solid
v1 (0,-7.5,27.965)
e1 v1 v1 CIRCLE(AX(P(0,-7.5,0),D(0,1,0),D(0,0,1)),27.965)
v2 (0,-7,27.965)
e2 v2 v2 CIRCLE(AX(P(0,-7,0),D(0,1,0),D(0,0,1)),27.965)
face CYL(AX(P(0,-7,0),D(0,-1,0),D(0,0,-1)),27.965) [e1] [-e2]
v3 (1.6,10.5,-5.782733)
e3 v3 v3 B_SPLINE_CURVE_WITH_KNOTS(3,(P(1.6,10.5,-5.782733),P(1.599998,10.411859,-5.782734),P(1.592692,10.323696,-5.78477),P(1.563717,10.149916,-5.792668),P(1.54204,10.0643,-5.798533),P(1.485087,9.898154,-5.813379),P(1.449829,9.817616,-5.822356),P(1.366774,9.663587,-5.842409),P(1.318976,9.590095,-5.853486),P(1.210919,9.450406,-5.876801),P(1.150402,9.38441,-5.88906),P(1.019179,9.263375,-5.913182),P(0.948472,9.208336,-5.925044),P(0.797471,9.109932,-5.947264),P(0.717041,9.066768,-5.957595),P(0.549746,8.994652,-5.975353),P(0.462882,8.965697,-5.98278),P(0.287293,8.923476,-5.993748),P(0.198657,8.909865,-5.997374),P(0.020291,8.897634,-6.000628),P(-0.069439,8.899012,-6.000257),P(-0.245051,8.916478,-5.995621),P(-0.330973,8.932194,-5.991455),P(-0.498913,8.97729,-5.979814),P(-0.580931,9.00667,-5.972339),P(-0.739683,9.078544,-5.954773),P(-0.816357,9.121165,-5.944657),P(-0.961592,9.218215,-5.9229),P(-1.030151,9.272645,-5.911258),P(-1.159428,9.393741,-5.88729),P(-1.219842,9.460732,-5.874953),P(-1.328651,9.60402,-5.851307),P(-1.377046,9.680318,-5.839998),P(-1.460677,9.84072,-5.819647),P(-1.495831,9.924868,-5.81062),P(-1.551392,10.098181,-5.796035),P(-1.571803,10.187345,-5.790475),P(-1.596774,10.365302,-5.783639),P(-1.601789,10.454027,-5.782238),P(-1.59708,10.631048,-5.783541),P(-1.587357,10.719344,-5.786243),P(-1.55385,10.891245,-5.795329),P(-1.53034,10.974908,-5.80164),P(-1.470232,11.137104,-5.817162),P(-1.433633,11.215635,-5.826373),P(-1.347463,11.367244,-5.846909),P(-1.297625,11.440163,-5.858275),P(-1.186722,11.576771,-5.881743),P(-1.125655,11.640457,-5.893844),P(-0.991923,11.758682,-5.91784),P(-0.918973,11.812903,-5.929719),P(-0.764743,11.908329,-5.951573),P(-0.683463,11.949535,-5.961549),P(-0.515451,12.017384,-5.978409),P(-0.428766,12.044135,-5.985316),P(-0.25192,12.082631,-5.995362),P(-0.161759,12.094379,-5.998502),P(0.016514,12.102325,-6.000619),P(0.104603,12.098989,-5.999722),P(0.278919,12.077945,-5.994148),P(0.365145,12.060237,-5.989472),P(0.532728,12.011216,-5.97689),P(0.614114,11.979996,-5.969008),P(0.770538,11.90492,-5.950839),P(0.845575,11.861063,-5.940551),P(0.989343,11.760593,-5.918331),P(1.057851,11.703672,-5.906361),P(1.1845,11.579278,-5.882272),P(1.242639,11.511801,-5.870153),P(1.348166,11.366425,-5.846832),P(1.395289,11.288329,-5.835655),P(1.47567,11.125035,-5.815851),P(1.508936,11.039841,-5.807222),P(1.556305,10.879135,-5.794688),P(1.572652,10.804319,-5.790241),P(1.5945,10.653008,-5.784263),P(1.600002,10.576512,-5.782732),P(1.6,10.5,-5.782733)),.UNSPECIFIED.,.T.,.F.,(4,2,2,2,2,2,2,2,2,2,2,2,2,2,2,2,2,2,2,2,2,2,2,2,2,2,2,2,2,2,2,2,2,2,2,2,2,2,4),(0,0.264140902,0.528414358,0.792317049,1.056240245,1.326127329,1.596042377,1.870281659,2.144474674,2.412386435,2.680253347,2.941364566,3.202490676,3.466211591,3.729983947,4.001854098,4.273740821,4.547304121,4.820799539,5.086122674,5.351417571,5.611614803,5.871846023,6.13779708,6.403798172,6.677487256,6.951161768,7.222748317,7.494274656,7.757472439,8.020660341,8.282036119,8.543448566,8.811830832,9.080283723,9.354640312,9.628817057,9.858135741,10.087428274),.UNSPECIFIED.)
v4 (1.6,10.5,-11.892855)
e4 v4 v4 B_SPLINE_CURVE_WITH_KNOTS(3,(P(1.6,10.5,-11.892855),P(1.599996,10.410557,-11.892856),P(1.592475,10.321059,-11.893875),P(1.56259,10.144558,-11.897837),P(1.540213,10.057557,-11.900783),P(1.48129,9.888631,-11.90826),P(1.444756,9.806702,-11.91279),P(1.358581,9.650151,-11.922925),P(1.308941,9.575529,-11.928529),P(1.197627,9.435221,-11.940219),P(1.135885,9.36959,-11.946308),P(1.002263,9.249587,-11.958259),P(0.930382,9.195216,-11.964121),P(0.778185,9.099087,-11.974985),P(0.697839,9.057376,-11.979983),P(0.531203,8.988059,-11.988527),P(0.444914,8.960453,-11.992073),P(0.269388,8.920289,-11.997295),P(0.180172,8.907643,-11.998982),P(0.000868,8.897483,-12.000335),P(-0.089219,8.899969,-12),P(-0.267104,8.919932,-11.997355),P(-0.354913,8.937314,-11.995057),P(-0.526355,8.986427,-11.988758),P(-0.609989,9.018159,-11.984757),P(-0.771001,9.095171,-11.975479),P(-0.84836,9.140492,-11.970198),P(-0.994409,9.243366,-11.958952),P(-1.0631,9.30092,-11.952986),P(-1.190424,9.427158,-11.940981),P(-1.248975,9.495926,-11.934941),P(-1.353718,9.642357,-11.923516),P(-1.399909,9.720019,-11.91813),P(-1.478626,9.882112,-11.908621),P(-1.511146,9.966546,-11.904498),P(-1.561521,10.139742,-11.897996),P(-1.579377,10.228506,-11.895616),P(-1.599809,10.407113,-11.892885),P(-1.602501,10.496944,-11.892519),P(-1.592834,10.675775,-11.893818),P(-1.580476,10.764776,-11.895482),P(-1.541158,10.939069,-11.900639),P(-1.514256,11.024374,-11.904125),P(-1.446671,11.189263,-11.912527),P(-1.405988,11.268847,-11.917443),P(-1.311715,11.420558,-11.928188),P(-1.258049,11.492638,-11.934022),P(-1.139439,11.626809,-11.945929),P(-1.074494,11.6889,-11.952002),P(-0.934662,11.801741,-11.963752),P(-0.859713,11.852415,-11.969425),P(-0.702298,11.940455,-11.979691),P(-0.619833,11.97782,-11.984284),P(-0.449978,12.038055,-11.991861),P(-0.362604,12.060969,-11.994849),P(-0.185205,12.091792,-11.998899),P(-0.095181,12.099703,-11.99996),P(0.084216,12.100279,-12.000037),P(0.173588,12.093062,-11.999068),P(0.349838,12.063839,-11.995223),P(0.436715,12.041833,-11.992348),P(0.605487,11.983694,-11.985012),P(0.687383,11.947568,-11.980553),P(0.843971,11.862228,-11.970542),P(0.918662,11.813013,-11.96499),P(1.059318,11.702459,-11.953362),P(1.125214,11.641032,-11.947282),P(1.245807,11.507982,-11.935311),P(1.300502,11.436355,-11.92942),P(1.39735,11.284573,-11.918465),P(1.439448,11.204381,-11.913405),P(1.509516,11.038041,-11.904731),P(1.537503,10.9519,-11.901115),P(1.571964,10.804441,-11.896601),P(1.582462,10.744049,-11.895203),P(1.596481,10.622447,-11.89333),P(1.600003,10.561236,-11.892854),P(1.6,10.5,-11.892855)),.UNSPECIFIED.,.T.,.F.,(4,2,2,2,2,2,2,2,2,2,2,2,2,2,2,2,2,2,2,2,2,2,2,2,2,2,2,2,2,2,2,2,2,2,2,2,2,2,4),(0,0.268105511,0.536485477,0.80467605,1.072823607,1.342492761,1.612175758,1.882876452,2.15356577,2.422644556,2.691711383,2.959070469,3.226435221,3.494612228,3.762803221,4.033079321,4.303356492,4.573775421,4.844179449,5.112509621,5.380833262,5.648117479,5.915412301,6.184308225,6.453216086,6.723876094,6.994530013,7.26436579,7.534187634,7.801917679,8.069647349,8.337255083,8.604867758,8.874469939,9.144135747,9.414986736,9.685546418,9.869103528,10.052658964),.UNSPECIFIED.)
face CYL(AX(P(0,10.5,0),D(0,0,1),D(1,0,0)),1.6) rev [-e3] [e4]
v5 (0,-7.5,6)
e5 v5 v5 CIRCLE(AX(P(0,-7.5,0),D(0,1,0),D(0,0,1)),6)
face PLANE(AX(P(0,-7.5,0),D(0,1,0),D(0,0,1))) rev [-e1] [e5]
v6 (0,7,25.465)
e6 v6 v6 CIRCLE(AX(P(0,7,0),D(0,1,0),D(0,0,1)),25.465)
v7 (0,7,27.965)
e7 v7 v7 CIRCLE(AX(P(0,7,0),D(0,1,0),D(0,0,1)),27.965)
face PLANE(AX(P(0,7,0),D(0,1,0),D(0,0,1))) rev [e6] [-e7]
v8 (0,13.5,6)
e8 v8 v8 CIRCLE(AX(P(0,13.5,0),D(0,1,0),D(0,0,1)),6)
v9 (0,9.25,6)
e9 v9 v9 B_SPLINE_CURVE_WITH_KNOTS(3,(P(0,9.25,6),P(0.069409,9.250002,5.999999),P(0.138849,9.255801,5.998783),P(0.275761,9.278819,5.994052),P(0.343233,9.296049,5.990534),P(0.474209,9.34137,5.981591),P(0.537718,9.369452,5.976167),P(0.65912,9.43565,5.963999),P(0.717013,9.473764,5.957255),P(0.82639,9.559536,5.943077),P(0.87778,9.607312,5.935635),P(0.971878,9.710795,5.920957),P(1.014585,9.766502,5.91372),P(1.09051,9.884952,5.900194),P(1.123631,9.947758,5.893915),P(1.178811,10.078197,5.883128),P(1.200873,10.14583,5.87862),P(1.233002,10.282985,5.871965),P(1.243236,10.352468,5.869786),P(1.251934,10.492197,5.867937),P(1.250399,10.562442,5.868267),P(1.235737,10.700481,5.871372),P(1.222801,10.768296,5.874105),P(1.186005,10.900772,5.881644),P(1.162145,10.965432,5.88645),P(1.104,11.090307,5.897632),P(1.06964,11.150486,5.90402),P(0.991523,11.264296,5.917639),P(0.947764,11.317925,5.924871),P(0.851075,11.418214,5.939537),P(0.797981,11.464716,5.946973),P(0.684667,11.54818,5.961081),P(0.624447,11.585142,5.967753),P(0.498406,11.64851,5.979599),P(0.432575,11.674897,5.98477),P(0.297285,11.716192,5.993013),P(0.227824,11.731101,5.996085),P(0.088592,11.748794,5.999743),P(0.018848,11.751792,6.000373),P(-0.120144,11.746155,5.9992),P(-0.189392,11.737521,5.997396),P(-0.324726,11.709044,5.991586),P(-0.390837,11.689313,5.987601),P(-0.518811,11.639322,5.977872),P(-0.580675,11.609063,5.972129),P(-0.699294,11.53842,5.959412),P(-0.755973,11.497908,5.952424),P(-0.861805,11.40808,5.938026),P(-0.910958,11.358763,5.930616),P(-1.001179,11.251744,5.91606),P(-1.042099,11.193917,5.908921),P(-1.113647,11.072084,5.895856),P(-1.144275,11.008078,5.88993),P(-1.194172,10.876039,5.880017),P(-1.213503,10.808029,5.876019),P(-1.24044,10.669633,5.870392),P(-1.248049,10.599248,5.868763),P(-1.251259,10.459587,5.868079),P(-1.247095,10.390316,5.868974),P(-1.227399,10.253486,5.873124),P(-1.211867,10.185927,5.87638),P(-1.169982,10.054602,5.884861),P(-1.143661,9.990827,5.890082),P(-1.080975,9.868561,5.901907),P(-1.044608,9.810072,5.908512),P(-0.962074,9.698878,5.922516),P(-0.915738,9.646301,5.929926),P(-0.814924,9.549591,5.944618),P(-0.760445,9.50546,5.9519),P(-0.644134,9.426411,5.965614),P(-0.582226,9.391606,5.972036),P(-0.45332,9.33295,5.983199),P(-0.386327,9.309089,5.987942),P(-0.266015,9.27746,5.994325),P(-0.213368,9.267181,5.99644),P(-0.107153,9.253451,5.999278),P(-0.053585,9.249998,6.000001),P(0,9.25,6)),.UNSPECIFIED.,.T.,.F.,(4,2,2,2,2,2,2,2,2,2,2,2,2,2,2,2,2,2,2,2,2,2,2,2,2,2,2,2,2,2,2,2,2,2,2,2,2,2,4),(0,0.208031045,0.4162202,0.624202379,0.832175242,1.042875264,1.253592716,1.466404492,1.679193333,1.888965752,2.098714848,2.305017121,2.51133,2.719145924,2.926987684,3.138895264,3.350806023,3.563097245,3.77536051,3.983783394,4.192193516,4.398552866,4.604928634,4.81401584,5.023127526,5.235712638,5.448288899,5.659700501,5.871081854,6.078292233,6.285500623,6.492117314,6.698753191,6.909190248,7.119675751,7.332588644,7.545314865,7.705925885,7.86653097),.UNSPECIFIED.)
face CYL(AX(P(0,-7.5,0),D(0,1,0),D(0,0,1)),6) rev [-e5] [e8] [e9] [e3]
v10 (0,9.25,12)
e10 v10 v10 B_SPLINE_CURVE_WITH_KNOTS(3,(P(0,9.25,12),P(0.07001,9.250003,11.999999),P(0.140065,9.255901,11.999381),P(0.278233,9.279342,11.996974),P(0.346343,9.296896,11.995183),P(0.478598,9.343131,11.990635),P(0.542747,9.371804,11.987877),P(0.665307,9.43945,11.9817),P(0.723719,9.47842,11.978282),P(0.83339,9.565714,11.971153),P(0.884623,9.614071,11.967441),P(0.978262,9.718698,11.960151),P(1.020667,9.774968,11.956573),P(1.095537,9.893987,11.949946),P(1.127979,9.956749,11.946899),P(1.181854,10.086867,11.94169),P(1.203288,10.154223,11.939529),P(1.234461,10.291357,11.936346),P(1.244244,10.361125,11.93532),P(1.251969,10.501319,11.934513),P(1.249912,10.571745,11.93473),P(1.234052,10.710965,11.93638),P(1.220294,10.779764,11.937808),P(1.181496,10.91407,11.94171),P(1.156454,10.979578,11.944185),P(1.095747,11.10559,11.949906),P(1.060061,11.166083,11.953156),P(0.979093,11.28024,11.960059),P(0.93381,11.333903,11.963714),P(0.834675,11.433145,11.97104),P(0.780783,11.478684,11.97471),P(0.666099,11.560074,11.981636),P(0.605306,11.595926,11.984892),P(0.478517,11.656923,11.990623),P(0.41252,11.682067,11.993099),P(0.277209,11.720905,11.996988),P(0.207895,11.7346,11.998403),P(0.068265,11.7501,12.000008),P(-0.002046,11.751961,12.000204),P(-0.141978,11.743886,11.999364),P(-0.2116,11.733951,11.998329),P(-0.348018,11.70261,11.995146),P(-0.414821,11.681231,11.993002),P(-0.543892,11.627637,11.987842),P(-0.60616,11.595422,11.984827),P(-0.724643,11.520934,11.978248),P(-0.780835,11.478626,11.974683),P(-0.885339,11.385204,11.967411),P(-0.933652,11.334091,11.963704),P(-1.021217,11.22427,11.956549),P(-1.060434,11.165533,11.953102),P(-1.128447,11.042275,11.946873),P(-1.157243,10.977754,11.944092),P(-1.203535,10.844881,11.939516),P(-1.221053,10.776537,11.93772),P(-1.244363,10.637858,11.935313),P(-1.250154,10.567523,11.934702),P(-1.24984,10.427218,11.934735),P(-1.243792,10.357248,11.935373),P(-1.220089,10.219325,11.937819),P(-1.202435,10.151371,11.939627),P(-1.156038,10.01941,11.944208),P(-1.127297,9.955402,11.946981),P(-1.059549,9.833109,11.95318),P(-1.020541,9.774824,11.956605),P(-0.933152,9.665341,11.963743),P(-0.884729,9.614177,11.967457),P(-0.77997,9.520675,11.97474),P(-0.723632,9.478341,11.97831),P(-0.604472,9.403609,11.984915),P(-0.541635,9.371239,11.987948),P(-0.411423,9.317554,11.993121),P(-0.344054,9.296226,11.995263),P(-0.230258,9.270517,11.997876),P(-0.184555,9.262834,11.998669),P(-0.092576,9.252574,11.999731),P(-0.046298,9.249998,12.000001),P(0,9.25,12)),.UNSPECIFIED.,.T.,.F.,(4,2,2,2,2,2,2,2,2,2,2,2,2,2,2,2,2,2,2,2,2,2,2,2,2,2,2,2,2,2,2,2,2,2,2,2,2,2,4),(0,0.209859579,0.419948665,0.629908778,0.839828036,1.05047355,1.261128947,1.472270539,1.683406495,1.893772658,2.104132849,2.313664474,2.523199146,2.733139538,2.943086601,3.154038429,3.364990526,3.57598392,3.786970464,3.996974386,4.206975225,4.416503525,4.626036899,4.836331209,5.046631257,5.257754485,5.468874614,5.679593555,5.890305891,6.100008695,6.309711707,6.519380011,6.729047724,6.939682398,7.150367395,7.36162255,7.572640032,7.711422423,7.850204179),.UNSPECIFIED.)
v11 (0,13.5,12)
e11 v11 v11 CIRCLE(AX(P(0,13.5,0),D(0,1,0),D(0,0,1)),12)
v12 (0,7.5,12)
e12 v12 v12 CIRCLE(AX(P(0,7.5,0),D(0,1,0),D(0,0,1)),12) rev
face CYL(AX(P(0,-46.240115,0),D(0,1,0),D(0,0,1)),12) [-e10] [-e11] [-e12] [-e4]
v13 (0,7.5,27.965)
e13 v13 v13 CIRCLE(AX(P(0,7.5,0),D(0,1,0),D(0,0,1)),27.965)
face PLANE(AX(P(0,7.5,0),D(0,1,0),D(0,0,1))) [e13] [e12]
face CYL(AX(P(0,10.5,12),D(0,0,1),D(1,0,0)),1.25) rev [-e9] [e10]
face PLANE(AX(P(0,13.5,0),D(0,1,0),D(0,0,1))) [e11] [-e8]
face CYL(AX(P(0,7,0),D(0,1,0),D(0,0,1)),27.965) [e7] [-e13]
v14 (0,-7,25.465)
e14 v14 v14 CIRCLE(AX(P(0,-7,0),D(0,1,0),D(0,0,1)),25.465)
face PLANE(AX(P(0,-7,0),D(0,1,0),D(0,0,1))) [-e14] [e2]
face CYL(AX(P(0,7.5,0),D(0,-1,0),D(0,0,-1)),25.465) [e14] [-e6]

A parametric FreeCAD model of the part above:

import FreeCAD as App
import Part
import Sketcher
Q = App.Units.Quantity


def add_polygon(sketch, points):
    """Adds a closed chain of lines whose ends are joined by coincident constraints."""
    first, n = sketch.GeometryCount, len(points)
    for a, b in zip(points, points[1:] + points[:1]):
        sketch.addGeometry(Part.LineSegment(App.Vector(*a, 0), App.Vector(*b, 0)), False)
    for i in range(n):
        sketch.addConstraint(Sketcher.Constraint("Coincident", first + i, 2, first + (i + 1) % n, 1))

doc = App.newDocument("Part")
body = doc.addObject("PartDesign::Body", "Body")

# Sketch on XZ plane
sketch1 = body.newObject("Sketcher::SketchObject", "Sketch")
sketch1.AttachmentSupport = (doc.getObject("XZ_Plane"), [""])
sketch1.MapMode = "FlatFace"
sketch1.addGeometry(Part.Circle(App.Vector(0, 0, 0), App.Vector(0, 0, 1), 25), False)
sketch1.addConstraint(Sketcher.Constraint("Coincident", 0, 3, -1, 1))
sketch1.addConstraint(Sketcher.Constraint("Diameter", 0, Q("50.93 mm")))
pad1 = body.newObject("PartDesign::Pad", "Pad")
pad1.Profile = sketch1
pad1.Length = 15
pad1.Midplane = True

# Sketch on XZ plane
sketch2 = body.newObject("Sketcher::SketchObject", "Sketch001")
sketch2.AttachmentSupport = (doc.getObject("XZ_Plane"), [""])
sketch2.MapMode = "FlatFace"
sketch2.AttachmentOffset = App.Placement(App.Vector(0, 0, -7.5), App.Rotation())
sketch2.addGeometry(Part.Circle(App.Vector(0, 0, 0), App.Vector(0, 0, 1), 28), False)
sketch2.addConstraint(Sketcher.Constraint("Coincident", 0, 3, -1, 1))
sketch2.addConstraint(Sketcher.Constraint("Diameter", 0, Q("55.93 mm")))
pad2 = body.newObject("PartDesign::Pad", "Pad001")
pad2.Profile = sketch2
pad2.Length = 0.5

# Sketch on XZ plane
sketch3 = body.newObject("Sketcher::SketchObject", "Sketch002")
sketch3.AttachmentSupport = (doc.getObject("XZ_Plane"), [""])
sketch3.MapMode = "FlatFace"
sketch3.AttachmentOffset = App.Placement(App.Vector(0, 0, 7), App.Rotation())
sketch3.addGeometry(Part.Circle(App.Vector(0, 0, 0), App.Vector(0, 0, 1), 28), False)
sketch3.addConstraint(Sketcher.Constraint("Coincident", 0, 3, -1, 1))
sketch3.addConstraint(Sketcher.Constraint("Diameter", 0, Q("55.93 mm")))
pad3 = body.newObject("PartDesign::Pad", "Pad002")
pad3.Profile = sketch3
pad3.Length = 0.5

# Sketch on XZ plane
sketch4 = body.newObject("Sketcher::SketchObject", "Sketch003")
sketch4.AttachmentSupport = (doc.getObject("XZ_Plane"), [""])
sketch4.MapMode = "FlatFace"
sketch4.AttachmentOffset = App.Placement(App.Vector(0, 0, 7.5), App.Rotation())
sketch4.addGeometry(Part.Circle(App.Vector(0, 0, 0), App.Vector(0, 0, 1), 19), False)
sketch4.addConstraint(Sketcher.Constraint("Coincident", 0, 3, -1, 1))
sketch4.addConstraint(Sketcher.Constraint("Diameter", 0, Q("38 mm")))
pad4 = body.newObject("PartDesign::Pad", "Pad003")
pad4.Profile = sketch4
pad4.Length = 21
pad4.Reversed = True

# Sketch on XZ plane
sketch5 = body.newObject("Sketcher::SketchObject", "Sketch004")
sketch5.AttachmentSupport = (doc.getObject("XZ_Plane"), [""])
sketch5.MapMode = "FlatFace"
sketch5.AttachmentOffset = App.Placement(App.Vector(0, 0, 7), App.Rotation())
sketch5.addGeometry(Part.Circle(App.Vector(0, 0, 0), App.Vector(0, 0, 1), 6), False)
sketch5.addConstraint(Sketcher.Constraint("Coincident", 0, 3, -1, 1))
sketch5.addConstraint(Sketcher.Constraint("Diameter", 0, Q("12 mm")))
pocket1 = body.newObject("PartDesign::Pocket", "Pocket")
pocket1.Profile = sketch5
pocket1.Type = "ThroughAll"
pocket1.Midplane = True

# Sketch on XZ plane
sketch6 = body.newObject("Sketcher::SketchObject", "Sketch005")
sketch6.AttachmentSupport = (doc.getObject("XZ_Plane"), [""])
sketch6.MapMode = "FlatFace"
sketch6.AttachmentOffset = App.Placement(App.Vector(0, 0, -7.5), App.Rotation())
sketch6.addGeometry(Part.Circle(App.Vector(0, 0, 0), App.Vector(0, 0, 1), 19), False)
sketch6.addGeometry(Part.Circle(App.Vector(0, 0, 0), App.Vector(0, 0, 1), 12), False)
sketch6.addConstraint(Sketcher.Constraint("Coincident", 0, 3, -1, 1))
sketch6.addConstraint(Sketcher.Constraint("Coincident", 1, 3, -1, 1))
sketch6.addConstraint(Sketcher.Constraint("Diameter", 0, Q("38 mm")))
sketch6.addConstraint(Sketcher.Constraint("Diameter", 1, Q("24 mm")))
pocket2 = body.newObject("PartDesign::Pocket", "Pocket001")
pocket2.Profile = sketch6
pocket2.Length = 6

# Sketch on XY plane
sketch7 = body.newObject("Sketcher::SketchObject", "Sketch006")
sketch7.AttachmentSupport = (doc.getObject("XY_Plane"), [""])
sketch7.MapMode = "FlatFace"
sketch7.AttachmentOffset = App.Placement(App.Vector(0, 0, 12), App.Rotation())
sketch7.addGeometry(Part.Circle(App.Vector(0, 10.5, 0), App.Vector(0, 0, 1), 1.2), False)
sketch7.addConstraint(Sketcher.Constraint("PointOnObject", 0, 3, -2))
sketch7.addConstraint(Sketcher.Constraint("Diameter", 0, Q("2.5 mm")))
sketch7.addConstraint(Sketcher.Constraint("DistanceY", -1, 1, 0, 3, Q("10.5 mm")))
pocket3 = body.newObject("PartDesign::Pocket", "Pocket002")
pocket3.Profile = sketch7
pocket3.Type = "UpToFirst"

# Sketch on YZ plane
sketch8 = body.newObject("Sketcher::SketchObject", "Sketch007")
sketch8.AttachmentSupport = (doc.getObject("YZ_Plane"), [""])
sketch8.MapMode = "FlatFace"
add_polygon(sketch8, [(10.5, -12), (10.5, 0), (8.9, 0), (8.9, -12)])  # lines 0-3
sketch8.addGeometry(Part.LineSegment(App.Vector(10.5, 0, 0), App.Vector(10.5, -12, 0)), True)  # axis
sketch8.addConstraint(Sketcher.Constraint("Vertical", 0))
sketch8.addConstraint(Sketcher.Constraint("Horizontal", 1))
sketch8.addConstraint(Sketcher.Constraint("Vertical", 2))
sketch8.addConstraint(Sketcher.Constraint("Horizontal", 3))
sketch8.addConstraint(Sketcher.Constraint("Vertical", 4))
sketch8.addConstraint(Sketcher.Constraint("Coincident", 4, 1, 0, 2))
sketch8.addConstraint(Sketcher.Constraint("PointOnObject", 0, 2, -1))
sketch8.addConstraint(Sketcher.Constraint("Horizontal", 2, 2, 4, 2))
sketch8.addConstraint(Sketcher.Constraint("DistanceY", 0, 1, 0, 2, Q("12 mm")))
sketch8.addConstraint(Sketcher.Constraint("DistanceX", 1, 2, 1, 1, Q("1.6 mm")))
sketch8.addConstraint(Sketcher.Constraint("DistanceX", -1, 1, 0, 2, Q("10.5 mm")))
groove = body.newObject("PartDesign::Groove", "Groove")
groove.Profile = sketch8
groove.ReferenceAxis = (sketch8, ["Axis0"])
groove.Angle = 360

doc.recompute()
